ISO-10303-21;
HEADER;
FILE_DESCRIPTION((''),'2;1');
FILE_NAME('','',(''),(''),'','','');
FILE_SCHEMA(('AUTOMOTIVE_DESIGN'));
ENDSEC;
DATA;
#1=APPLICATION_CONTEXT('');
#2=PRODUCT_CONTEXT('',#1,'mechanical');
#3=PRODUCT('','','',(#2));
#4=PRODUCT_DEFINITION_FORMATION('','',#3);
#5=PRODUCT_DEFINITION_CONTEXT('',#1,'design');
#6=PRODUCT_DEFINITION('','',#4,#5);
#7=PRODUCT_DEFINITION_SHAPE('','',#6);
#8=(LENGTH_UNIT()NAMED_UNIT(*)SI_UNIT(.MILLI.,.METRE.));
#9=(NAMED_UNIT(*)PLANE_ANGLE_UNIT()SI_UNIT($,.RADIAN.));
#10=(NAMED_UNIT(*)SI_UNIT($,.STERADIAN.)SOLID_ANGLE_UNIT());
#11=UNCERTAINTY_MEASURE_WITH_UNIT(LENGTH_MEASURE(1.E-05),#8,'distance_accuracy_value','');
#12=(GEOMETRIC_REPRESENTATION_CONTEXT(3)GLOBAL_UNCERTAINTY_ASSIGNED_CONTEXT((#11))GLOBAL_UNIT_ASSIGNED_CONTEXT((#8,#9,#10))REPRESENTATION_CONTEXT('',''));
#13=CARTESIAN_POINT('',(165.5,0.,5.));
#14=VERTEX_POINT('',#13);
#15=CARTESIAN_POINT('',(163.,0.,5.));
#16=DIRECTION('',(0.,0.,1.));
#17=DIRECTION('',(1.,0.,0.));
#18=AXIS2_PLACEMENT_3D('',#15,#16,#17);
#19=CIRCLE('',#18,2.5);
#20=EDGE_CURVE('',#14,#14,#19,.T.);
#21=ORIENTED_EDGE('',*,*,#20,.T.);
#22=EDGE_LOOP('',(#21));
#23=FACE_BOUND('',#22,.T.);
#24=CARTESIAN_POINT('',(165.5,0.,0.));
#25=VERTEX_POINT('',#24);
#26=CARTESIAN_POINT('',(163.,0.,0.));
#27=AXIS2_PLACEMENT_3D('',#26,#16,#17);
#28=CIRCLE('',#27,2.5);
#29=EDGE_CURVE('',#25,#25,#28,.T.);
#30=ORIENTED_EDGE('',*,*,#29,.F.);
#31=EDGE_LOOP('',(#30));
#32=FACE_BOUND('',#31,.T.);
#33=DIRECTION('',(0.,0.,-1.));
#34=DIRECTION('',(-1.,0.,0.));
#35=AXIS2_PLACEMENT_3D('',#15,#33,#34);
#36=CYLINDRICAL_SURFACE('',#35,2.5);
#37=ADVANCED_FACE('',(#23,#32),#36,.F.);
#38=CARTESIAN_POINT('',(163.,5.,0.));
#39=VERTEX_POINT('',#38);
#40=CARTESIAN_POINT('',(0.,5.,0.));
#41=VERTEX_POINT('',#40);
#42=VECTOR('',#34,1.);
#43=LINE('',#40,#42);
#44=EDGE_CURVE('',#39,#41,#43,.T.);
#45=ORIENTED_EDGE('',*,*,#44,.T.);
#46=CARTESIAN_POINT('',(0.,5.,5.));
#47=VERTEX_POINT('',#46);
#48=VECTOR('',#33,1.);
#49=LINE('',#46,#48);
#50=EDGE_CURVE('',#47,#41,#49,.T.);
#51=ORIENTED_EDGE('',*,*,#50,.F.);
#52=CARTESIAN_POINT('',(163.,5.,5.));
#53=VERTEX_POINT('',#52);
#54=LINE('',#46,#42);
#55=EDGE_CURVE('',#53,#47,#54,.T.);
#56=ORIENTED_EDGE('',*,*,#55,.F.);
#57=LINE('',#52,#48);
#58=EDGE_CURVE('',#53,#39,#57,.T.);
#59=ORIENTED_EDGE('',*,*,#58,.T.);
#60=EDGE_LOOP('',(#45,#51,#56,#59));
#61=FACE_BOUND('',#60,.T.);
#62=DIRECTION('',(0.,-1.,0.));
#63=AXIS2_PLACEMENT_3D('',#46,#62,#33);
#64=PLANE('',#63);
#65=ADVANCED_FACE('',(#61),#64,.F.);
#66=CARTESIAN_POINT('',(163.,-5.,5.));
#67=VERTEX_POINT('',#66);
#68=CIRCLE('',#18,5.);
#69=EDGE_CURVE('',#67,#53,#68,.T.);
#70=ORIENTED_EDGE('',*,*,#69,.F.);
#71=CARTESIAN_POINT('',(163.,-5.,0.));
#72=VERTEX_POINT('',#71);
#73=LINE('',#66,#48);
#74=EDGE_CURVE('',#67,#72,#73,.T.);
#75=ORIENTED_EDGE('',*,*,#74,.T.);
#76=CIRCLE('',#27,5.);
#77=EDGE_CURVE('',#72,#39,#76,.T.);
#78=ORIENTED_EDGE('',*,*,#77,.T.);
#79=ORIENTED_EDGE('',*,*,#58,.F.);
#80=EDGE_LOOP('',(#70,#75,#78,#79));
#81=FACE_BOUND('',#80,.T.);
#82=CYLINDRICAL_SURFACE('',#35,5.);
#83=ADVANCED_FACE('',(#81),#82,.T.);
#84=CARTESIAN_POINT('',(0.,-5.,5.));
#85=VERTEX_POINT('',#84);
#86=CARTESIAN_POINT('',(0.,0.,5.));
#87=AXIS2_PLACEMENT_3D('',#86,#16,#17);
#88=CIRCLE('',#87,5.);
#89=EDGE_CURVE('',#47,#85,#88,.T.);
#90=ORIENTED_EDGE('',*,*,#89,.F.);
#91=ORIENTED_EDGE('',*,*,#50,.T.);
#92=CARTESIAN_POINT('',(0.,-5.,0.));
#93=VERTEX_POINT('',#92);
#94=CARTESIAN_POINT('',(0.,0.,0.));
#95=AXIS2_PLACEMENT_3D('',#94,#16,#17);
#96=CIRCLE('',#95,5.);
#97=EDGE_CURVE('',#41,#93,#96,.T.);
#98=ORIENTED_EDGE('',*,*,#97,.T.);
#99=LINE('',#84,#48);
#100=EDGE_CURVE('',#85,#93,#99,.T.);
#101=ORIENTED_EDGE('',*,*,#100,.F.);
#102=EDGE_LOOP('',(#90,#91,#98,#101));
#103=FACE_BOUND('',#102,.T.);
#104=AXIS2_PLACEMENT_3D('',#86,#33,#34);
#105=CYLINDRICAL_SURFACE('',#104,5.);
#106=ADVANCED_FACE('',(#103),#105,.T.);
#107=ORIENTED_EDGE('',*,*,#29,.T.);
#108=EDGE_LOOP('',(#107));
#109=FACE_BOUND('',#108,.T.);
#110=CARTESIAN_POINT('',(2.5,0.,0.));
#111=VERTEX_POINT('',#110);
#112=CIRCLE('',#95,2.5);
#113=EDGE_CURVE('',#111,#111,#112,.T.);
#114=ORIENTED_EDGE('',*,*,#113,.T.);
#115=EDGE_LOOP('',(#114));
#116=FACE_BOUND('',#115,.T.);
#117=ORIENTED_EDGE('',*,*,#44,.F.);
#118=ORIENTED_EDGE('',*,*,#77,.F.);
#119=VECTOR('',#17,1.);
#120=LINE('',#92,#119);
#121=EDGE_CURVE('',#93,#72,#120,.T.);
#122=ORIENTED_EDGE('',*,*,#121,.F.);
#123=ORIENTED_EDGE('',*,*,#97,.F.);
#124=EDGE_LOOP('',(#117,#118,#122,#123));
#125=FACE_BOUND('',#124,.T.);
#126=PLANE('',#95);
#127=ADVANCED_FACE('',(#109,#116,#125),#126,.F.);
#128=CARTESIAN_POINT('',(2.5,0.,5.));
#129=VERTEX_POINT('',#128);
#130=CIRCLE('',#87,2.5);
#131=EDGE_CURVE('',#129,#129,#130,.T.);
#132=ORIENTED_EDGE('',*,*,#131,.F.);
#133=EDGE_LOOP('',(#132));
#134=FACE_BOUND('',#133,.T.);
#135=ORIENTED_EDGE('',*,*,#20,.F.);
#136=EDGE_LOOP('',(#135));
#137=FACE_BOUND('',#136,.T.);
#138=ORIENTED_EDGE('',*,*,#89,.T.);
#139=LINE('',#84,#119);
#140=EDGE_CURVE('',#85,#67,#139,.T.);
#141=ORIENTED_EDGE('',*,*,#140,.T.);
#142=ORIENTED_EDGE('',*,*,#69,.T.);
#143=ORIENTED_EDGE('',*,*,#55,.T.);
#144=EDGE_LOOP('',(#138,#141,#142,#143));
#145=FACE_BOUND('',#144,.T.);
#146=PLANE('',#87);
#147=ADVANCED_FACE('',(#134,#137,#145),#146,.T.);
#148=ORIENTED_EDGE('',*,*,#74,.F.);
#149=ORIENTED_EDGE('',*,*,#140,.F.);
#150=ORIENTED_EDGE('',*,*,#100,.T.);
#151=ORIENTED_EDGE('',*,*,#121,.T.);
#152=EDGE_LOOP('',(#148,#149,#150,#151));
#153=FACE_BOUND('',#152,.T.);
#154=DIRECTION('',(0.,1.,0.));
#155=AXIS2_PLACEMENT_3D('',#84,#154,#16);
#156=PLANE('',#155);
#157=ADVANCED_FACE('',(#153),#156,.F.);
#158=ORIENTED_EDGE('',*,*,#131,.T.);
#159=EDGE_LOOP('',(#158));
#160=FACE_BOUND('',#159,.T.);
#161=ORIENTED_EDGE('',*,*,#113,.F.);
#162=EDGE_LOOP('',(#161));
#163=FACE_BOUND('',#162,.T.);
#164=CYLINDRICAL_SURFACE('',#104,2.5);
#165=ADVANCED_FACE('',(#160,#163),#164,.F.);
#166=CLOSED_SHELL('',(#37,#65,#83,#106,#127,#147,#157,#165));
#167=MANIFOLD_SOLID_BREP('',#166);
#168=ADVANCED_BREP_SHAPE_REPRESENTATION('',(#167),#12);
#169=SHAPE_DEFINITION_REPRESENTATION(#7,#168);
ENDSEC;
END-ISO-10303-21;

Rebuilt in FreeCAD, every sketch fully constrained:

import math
import FreeCAD as App
import Part
import Sketcher

V = App.Vector

doc = App.newDocument("Part")
body = doc.addObject("PartDesign::Body", "Body")

# Sketch on XY plane
sketch1 = body.newObject("Sketcher::SketchObject", "Sketch")
sketch1.AttachmentSupport = (doc.getObject("XY_Plane"), [""])
sketch1.MapMode = "FlatFace"
sketch1.addGeometry(Part.LineSegment(V(163, 5, 0), V(0, 5, 0)), False)
sketch1.addGeometry(Part.ArcOfCircle(Part.Circle(V(0, 0, 0), V(0, 0, 1), 5), math.radians(90), math.radians(270)), False)
sketch1.addGeometry(Part.LineSegment(V(0, -5, 0), V(163, -5, 0)), False)
sketch1.addGeometry(Part.ArcOfCircle(Part.Circle(V(163, 0, 0), V(0, 0, 1), 5), math.radians(-90), math.radians(90)), False)
sketch1.addGeometry(Part.Circle(V(163, 0, 0), V(0, 0, 1), 2.5), False)
sketch1.addGeometry(Part.Circle(V(0, 0, 0), V(0, 0, 1), 2.5), False)
sketch1.addConstraint(Sketcher.Constraint("Tangent", 0, 2, 1, 1))
sketch1.addConstraint(Sketcher.Constraint("Tangent", 1, 2, 2, 1))
sketch1.addConstraint(Sketcher.Constraint("Tangent", 2, 2, 3, 1))
sketch1.addConstraint(Sketcher.Constraint("Tangent", 3, 2, 0, 1))
sketch1.addConstraint(Sketcher.Constraint("Horizontal", 0))
sketch1.addConstraint(Sketcher.Constraint("Horizontal", 2))
sketch1.addConstraint(Sketcher.Constraint("Coincident", 1, 3, -1, 1))
sketch1.addConstraint(Sketcher.Constraint("Coincident", 5, 3, -1, 1))
sketch1.addConstraint(Sketcher.Constraint("Coincident", 4, 3, 3, 3))
sketch1.addConstraint(Sketcher.Constraint("Equal", 4, 5))
sketch1.addConstraint(Sketcher.Constraint("Diameter", 4, 5.0))
sketch1.addConstraint(Sketcher.Constraint("Radius", 1, 5.0))
sketch1.addConstraint(Sketcher.Constraint("DistanceX", 0, 2, 0, 1, 163.0))
pad1 = body.newObject("PartDesign::Pad", "Pad")
pad1.Profile = sketch1
pad1.Length = 5

doc.recompute()
